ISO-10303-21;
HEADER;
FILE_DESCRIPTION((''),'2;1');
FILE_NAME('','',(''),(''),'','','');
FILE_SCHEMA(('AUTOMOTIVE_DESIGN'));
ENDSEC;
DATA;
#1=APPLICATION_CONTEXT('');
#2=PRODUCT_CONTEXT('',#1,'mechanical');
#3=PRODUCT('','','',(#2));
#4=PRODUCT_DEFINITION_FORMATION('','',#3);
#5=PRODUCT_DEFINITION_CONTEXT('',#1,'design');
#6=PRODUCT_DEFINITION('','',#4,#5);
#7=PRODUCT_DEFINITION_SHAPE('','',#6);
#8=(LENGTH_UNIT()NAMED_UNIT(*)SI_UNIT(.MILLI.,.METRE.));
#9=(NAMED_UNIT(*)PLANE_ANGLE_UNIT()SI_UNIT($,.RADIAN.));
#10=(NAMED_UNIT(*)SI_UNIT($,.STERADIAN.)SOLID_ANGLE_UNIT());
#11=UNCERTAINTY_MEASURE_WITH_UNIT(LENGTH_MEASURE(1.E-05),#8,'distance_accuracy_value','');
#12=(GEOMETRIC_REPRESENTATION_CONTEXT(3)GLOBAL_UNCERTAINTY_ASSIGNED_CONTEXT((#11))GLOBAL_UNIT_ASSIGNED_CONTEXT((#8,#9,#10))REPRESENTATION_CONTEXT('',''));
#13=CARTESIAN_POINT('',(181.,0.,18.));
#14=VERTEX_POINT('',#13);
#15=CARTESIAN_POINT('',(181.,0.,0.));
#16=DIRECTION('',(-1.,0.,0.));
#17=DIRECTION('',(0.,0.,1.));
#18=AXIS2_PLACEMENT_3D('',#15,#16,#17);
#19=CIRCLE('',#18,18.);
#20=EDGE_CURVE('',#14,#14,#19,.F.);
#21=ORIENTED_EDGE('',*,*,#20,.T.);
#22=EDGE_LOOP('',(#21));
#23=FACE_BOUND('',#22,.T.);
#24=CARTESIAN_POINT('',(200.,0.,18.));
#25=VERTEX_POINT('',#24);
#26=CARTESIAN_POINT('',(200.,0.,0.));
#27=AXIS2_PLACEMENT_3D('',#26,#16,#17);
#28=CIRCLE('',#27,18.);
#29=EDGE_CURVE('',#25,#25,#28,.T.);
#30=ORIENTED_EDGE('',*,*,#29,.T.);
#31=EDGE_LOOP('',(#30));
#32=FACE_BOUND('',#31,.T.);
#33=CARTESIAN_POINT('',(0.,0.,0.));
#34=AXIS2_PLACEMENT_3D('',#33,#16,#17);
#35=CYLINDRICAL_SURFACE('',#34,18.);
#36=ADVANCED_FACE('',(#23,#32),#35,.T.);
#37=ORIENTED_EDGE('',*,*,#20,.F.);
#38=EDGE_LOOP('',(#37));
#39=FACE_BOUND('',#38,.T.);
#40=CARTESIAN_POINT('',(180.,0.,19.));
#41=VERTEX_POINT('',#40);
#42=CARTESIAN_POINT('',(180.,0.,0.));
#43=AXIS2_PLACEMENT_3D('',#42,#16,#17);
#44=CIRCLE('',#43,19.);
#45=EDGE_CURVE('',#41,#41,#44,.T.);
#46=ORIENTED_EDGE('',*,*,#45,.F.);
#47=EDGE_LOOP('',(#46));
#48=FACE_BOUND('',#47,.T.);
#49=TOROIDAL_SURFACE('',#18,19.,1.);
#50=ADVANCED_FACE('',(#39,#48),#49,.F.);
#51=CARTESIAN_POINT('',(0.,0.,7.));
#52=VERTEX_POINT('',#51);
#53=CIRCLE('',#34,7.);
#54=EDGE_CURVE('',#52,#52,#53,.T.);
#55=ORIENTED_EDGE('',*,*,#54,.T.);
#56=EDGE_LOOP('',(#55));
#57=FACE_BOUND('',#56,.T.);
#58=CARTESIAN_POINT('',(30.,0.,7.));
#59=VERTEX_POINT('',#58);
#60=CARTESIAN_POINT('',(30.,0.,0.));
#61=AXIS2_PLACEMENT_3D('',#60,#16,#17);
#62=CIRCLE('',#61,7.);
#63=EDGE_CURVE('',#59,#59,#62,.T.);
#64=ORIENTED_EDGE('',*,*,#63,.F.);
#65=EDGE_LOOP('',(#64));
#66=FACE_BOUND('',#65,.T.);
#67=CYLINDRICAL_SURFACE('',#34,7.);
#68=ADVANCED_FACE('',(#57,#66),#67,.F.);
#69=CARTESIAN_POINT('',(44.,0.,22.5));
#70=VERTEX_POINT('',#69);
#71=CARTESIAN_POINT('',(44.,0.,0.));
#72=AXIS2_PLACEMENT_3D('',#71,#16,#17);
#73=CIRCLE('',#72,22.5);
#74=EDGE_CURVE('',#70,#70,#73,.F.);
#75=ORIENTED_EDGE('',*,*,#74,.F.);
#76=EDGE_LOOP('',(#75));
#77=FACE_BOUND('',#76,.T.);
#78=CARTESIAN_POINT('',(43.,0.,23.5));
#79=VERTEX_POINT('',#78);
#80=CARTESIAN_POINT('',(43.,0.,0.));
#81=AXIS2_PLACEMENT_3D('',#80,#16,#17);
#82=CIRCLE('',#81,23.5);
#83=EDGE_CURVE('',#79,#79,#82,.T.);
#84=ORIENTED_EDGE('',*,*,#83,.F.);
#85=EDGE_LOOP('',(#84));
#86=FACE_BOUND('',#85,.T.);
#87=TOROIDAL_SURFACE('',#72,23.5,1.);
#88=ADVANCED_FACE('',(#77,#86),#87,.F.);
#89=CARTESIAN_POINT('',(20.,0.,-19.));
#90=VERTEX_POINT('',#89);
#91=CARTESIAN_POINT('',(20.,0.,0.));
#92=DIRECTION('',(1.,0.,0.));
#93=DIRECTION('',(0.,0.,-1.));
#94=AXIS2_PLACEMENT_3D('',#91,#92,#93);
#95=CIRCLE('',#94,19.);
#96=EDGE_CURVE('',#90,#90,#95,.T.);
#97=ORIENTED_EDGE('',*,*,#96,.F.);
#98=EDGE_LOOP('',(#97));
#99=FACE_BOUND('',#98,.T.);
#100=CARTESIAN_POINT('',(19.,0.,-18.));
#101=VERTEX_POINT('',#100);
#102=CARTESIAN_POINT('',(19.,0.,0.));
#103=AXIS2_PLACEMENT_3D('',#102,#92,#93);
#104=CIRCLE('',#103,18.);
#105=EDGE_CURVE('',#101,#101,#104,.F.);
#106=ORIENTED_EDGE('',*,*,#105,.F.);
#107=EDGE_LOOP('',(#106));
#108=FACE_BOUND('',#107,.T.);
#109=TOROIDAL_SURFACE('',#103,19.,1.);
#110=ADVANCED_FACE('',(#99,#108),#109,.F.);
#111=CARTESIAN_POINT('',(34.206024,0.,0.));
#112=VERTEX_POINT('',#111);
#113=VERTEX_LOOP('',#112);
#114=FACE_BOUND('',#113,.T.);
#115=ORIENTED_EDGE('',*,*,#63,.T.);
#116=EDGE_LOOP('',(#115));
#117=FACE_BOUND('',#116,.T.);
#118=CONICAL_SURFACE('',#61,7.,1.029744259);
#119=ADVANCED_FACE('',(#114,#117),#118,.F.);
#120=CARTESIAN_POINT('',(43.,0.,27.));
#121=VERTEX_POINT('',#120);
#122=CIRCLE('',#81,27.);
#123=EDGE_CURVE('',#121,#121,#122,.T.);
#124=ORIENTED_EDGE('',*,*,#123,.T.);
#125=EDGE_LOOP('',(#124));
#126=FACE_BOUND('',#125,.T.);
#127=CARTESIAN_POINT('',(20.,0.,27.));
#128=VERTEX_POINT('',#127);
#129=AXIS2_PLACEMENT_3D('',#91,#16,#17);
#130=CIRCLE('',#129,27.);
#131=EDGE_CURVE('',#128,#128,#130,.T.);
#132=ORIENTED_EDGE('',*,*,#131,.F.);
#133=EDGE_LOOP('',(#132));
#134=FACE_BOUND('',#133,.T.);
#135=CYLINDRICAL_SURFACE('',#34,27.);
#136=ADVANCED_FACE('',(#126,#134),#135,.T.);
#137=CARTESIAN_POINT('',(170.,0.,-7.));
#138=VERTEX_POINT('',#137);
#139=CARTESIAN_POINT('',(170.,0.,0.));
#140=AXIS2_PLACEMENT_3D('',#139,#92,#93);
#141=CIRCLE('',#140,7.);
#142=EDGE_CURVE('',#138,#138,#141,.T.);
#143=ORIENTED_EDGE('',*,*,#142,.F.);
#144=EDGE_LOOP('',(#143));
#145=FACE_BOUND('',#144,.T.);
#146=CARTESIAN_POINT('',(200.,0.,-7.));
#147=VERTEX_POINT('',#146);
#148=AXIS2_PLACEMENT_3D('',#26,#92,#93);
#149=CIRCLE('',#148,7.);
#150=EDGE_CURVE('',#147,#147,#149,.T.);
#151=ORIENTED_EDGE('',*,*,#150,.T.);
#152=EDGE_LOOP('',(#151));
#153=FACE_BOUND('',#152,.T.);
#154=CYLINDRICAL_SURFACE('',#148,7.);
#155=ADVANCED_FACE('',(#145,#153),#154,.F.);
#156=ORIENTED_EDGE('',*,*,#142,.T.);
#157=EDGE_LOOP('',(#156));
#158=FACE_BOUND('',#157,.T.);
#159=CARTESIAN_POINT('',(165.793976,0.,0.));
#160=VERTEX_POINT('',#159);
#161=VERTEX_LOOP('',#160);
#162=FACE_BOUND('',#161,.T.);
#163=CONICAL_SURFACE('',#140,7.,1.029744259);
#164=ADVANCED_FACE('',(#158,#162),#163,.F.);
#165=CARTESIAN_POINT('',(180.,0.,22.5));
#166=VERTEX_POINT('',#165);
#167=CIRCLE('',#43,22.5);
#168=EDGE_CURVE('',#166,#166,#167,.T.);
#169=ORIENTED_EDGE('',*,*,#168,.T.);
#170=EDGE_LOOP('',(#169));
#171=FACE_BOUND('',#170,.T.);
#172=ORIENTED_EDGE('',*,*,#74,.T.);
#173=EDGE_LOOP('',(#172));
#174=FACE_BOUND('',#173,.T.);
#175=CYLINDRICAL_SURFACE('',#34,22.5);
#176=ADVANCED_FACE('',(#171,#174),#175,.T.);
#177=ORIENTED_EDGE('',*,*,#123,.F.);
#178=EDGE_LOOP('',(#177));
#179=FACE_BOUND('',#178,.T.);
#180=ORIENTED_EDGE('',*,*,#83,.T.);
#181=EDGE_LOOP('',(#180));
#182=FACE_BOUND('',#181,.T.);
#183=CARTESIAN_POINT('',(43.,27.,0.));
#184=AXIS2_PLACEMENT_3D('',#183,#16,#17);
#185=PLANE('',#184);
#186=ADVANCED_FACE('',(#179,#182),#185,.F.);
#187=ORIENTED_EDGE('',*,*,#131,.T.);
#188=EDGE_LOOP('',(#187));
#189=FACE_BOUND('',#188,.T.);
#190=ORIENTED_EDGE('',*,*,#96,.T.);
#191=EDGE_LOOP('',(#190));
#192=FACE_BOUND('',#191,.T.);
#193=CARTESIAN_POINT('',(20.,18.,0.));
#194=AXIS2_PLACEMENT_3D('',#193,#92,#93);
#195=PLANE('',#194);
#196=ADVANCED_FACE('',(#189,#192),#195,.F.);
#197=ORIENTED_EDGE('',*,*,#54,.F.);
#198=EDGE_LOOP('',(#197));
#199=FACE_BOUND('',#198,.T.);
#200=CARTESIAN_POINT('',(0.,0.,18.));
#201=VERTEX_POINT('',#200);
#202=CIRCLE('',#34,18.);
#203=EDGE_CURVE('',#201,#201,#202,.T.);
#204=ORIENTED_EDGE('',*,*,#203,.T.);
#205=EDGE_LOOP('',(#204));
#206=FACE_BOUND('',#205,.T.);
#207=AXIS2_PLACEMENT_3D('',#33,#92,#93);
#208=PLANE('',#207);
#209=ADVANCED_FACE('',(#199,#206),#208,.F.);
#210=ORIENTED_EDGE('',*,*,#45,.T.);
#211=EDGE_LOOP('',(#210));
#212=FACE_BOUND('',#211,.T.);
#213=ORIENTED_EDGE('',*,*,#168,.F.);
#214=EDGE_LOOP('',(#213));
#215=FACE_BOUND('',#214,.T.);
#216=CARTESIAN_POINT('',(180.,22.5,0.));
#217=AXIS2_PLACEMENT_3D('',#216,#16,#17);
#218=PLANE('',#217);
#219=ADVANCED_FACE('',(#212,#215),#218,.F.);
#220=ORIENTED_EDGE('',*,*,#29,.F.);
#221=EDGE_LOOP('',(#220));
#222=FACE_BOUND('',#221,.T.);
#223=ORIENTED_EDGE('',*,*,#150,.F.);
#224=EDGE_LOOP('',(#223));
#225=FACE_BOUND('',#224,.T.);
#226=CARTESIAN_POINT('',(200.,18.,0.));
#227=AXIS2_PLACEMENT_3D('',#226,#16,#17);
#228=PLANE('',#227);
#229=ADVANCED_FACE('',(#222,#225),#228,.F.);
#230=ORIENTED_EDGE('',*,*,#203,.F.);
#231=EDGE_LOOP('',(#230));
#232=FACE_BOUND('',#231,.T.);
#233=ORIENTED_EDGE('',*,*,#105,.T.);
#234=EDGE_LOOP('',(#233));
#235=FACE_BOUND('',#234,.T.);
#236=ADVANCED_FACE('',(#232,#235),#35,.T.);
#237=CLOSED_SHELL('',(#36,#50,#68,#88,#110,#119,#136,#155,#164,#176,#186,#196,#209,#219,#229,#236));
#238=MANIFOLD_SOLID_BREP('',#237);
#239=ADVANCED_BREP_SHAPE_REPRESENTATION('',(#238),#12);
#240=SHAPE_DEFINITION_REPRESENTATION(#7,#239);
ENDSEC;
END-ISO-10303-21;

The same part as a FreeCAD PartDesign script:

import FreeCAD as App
import Part
import Sketcher
from FreeCAD import Vector
Q = App.Units.Quantity


def edges_at(feature, points):
    """Names of the edges that pass closest to the given points."""
    edges = feature.Shape.Edges
    near = lambda p: min(range(len(edges)), key=lambda i: edges[i].distToShape(Part.Vertex(*p))[0])
    return sorted({f"Edge{near(p) + 1}" for p in points})


def add_polygon(sketch, points):
    """Adds a closed chain of lines whose ends are joined by coincident constraints."""
    first, n = sketch.GeometryCount, len(points)
    for a, b in zip(points, points[1:] + points[:1]):
        sketch.addGeometry(Part.LineSegment(App.Vector(*a, 0), App.Vector(*b, 0)), False)
    for i in range(n):
        sketch.addConstraint(Sketcher.Constraint("Coincident", first + i, 2, first + (i + 1) % n, 1))

doc = App.newDocument("Part")
body = doc.addObject("PartDesign::Body", "Body")

# Sketch on XY plane
sketch1 = body.newObject("Sketcher::SketchObject", "Sketch")
sketch1.AttachmentSupport = (doc.getObject("XY_Plane"), [""])
sketch1.MapMode = "FlatFace"
add_polygon(sketch1, [(0, 18), (0, 0), (200, 0), (200, 18), (180, 18), (180, 22.5), (43, 22.5), (43, 27), (20, 27), (20, 18)])  # lines 0-9
sketch1.addConstraint([
    Sketcher.Constraint("Vertical", 0),
    Sketcher.Constraint("Horizontal", 1),
    Sketcher.Constraint("Vertical", 2),
    Sketcher.Constraint("Horizontal", 3),
    Sketcher.Constraint("Vertical", 4),
    Sketcher.Constraint("Horizontal", 5),
    Sketcher.Constraint("Vertical", 6),
    Sketcher.Constraint("Horizontal", 7),
    Sketcher.Constraint("Vertical", 8),
    Sketcher.Constraint("Horizontal", 9),
    Sketcher.Constraint("Coincident", 0, 2, -1, 1),
    Sketcher.Constraint("Horizontal", 3, 2, 8, 2),
    Sketcher.Constraint("Equal", 3, 9),
    Sketcher.Constraint("Equal", 4, 6),
    Sketcher.Constraint("DistanceX", 1, 1, 1, 2, Q("200 mm")),
    Sketcher.Constraint("DistanceX", 3, 2, 3, 1, Q("20 mm")),
    Sketcher.Constraint("DistanceX", 5, 2, 5, 1, Q("137 mm")),
    Sketcher.Constraint("DistanceY", 0, 2, 0, 1, Q("18 mm")),
    Sketcher.Constraint("DistanceY", 8, 2, 8, 1, Q("9 mm")),
])
revolution = body.newObject("PartDesign::Revolution", "Revolution")
revolution.Profile = sketch1
revolution.ReferenceAxis = (sketch1, ["H_Axis"])
revolution.Angle = 360

# Sketch on YZ plane
sketch2 = body.newObject("Sketcher::SketchObject", "Sketch001")
sketch2.AttachmentSupport = (doc.getObject("YZ_Plane"), [""])
sketch2.MapMode = "FlatFace"
sketch2.AttachmentOffset = App.Placement(Vector(0, 0, 200), App.Rotation())
sketch2.addGeometry(Part.Circle(Vector(0, 0, 0), Vector(0, 0, 1), 7), False)
sketch2.addConstraint([
    Sketcher.Constraint("Coincident", 0, 3, -1, 1),
    Sketcher.Constraint("Diameter", 0, Q("14 mm")),
])
doc.recompute()
hole = body.newObject("PartDesign::Hole", "Hole")
hole.Profile = sketch2
hole.ThreadType = "None"
hole.Diameter = 14
hole.DepthType = "Dimension"
hole.Depth = 30
hole.DrillPoint = "Angled"
hole.DrillPointAngle = 118

# Sketch on YZ plane
sketch3 = body.newObject("Sketcher::SketchObject", "Sketch002")
sketch3.AttachmentSupport = (doc.getObject("YZ_Plane"), [""])
sketch3.MapMode = "FlatFace"
sketch3.addGeometry(Part.Circle(Vector(0, 0, 0), Vector(0, 0, 1), 7), False)
sketch3.addConstraint([
    Sketcher.Constraint("Coincident", 0, 3, -1, 1),
    Sketcher.Constraint("Diameter", 0, Q("14 mm")),
])
doc.recompute()
hole2 = body.newObject("PartDesign::Hole", "Hole001")
hole2.Profile = sketch3
hole2.ThreadType = "None"
hole2.Diameter = 14
hole2.DepthType = "Dimension"
hole2.Depth = 30
hole2.DrillPoint = "Angled"
hole2.DrillPointAngle = 118
hole2.Reversed = True
doc.recompute()

fillet = body.newObject("PartDesign::Fillet", "Fillet")
fillet.Base = (hole2, edges_at(hole2, [(20, 0, -18), (180, 0, -18), (43, 0, -22.5)]))
fillet.Radius = 1

doc.recompute()
